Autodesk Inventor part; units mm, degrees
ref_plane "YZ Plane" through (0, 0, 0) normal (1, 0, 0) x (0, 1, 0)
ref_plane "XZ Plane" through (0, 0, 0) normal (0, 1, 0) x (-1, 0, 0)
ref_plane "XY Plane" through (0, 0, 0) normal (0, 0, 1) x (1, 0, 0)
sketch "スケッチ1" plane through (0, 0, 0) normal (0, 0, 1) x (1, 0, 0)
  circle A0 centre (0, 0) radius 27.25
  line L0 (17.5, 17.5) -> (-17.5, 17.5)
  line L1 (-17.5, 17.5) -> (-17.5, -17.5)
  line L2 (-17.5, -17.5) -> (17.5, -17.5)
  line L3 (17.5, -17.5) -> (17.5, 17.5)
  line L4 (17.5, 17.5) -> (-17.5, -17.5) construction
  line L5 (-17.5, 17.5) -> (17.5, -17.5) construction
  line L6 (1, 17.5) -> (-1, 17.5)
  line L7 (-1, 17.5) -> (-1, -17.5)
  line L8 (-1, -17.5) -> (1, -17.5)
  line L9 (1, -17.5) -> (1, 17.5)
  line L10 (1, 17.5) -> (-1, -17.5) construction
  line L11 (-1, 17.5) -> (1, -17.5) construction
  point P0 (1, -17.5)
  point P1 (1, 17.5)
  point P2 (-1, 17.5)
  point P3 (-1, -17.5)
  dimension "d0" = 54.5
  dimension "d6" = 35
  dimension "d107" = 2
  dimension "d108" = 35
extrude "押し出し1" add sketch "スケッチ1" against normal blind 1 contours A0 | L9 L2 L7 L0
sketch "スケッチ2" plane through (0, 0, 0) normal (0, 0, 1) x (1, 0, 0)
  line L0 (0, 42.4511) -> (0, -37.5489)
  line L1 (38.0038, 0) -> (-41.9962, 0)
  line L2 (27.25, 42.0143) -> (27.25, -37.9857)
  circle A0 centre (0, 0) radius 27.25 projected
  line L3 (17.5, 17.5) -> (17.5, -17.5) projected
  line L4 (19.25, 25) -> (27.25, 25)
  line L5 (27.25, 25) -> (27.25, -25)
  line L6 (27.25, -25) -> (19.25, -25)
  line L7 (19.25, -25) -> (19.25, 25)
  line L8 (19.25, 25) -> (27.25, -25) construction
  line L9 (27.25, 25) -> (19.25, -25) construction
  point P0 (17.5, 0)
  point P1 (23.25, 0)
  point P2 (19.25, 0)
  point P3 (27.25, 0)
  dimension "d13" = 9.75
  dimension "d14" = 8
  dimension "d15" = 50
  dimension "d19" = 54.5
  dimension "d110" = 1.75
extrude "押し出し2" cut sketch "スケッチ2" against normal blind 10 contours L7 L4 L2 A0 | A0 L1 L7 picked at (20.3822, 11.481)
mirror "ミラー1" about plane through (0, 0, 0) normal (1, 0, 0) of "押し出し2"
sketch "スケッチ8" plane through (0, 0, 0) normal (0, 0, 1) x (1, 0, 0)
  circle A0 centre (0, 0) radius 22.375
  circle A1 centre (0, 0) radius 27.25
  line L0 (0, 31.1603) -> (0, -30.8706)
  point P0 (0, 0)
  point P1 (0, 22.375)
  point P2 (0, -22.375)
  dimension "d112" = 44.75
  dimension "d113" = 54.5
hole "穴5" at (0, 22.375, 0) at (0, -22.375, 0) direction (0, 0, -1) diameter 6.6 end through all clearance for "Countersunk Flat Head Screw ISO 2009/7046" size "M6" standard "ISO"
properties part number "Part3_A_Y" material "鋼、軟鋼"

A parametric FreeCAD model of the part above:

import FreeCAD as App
import Part
import Sketcher

V = App.Vector
Q = App.Units.Quantity


def add_polygon(sketch, points):
    """Adds a closed chain of lines whose ends are joined by coincident constraints."""
    first, n = sketch.GeometryCount, len(points)
    for a, b in zip(points, points[1:] + points[:1]):
        sketch.addGeometry(Part.LineSegment(App.Vector(*a, 0), App.Vector(*b, 0)), False)
    for i in range(n):
        sketch.addConstraint(Sketcher.Constraint("Coincident", first + i, 2, first + (i + 1) % n, 1))

doc = App.newDocument("Part")
body = doc.addObject("PartDesign::Body", "Body")

sketch1 = body.newObject("Sketcher::SketchObject", "Sketch")
sketch1.AttachmentSupport = (doc.getObject("XY_Plane"), [""])
sketch1.MapMode = "FlatFace"
sketch1.addGeometry(Part.Circle(V(0, 0, 0), V(0, 0, 1), 27), False)
add_polygon(sketch1, [(1, 18), (18, 18), (18, -18), (1, -18)])
add_polygon(sketch1, [(-18, 18), (-1, 18), (-1, -18), (-18, -18)])
sketch1.addConstraint([
    Sketcher.Constraint("Horizontal", 1),
    Sketcher.Constraint("Vertical", 2),
    Sketcher.Constraint("Horizontal", 3),
    Sketcher.Constraint("Vertical", 4),
    Sketcher.Constraint("Horizontal", 5),
    Sketcher.Constraint("Vertical", 6),
    Sketcher.Constraint("Horizontal", 7),
    Sketcher.Constraint("Vertical", 8),
    Sketcher.Constraint("Coincident", 0, 3, -1, 1),
    Sketcher.Constraint("Symmetric", 3, 2, 5, 2, -1, 1),
    Sketcher.Constraint("Symmetric", 1, 2, 7, 2, -1, 1),
    Sketcher.Constraint("Horizontal", 4, 2, 5, 2),
    Sketcher.Constraint("Diameter", 0, Q("54.5 mm")),
    Sketcher.Constraint("DistanceY", 2, 2, 2, 1, Q("35 mm")),
    Sketcher.Constraint("DistanceX", 5, 2, 4, 2, Q("2 mm")),
    Sketcher.Constraint("DistanceX", 7, 2, 2, 2, Q("35 mm")),
])
pad1 = body.newObject("PartDesign::Pad", "Pad")
pad1.Profile = sketch1
pad1.Length = 1
pad1.Reversed = True

sketch2 = body.newObject("Sketcher::SketchObject", "Sketch001")
sketch2.AttachmentSupport = (doc.getObject("XY_Plane"), [""])
sketch2.MapMode = "FlatFace"
add_polygon(sketch2, [(19, 25), (19, 0), (27, 0), (27, 25)])
sketch2.addConstraint([
    Sketcher.Constraint("Vertical", 0),
    Sketcher.Constraint("Horizontal", 1),
    Sketcher.Constraint("Vertical", 2),
    Sketcher.Constraint("Horizontal", 3),
    Sketcher.Constraint("PointOnObject", 0, 2, -1),
    Sketcher.Constraint("DistanceX", 1, 1, 1, 2, Q("8 mm")),
    Sketcher.Constraint("DistanceY", 0, 2, 0, 1, Q("25 mm")),
    Sketcher.Constraint("DistanceX", -1, 1, 0, 2, Q("19.25 mm")),
])
pocket1 = body.newObject("PartDesign::Pocket", "Pocket")
pocket1.Profile = sketch2
pocket1.Length = 10
doc.recompute()

mirrored = body.newObject("PartDesign::Mirrored", "Mirrored")
mirrored.Originals = [pocket1]
mirrored.MirrorPlane = (doc.getObject("YZ_Plane"), [""])
body.Tip = mirrored

sketch3 = body.newObject("Sketcher::SketchObject", "Sketch002")
sketch3.AttachmentSupport = (doc.getObject("XY_Plane"), [""])
sketch3.MapMode = "FlatFace"
sketch3.addGeometry([
    Part.Circle(V(0, 22.4, 0), V(0, 0, 1), 3.3),
    Part.Circle(V(0, -22.4, 0), V(0, 0, 1), 3.3),
], False)
sketch3.addConstraint([
    Sketcher.Constraint("Equal", 0, 1),
    Sketcher.Constraint("Symmetric", 0, 3, 1, 3, -1, 1),
    Sketcher.Constraint("PointOnObject", 0, 3, -2),
    Sketcher.Constraint("Diameter", 0, Q("6.6 mm")),
    Sketcher.Constraint("DistanceY", 1, 3, 0, 3, Q("44.75 mm")),
])
doc.recompute()
hole = body.newObject("PartDesign::Hole", "Hole")
hole.Profile = sketch3
hole.ThreadType = "None"
hole.Diameter = 6.6
hole.DepthType = "ThroughAll"

doc.recompute()
